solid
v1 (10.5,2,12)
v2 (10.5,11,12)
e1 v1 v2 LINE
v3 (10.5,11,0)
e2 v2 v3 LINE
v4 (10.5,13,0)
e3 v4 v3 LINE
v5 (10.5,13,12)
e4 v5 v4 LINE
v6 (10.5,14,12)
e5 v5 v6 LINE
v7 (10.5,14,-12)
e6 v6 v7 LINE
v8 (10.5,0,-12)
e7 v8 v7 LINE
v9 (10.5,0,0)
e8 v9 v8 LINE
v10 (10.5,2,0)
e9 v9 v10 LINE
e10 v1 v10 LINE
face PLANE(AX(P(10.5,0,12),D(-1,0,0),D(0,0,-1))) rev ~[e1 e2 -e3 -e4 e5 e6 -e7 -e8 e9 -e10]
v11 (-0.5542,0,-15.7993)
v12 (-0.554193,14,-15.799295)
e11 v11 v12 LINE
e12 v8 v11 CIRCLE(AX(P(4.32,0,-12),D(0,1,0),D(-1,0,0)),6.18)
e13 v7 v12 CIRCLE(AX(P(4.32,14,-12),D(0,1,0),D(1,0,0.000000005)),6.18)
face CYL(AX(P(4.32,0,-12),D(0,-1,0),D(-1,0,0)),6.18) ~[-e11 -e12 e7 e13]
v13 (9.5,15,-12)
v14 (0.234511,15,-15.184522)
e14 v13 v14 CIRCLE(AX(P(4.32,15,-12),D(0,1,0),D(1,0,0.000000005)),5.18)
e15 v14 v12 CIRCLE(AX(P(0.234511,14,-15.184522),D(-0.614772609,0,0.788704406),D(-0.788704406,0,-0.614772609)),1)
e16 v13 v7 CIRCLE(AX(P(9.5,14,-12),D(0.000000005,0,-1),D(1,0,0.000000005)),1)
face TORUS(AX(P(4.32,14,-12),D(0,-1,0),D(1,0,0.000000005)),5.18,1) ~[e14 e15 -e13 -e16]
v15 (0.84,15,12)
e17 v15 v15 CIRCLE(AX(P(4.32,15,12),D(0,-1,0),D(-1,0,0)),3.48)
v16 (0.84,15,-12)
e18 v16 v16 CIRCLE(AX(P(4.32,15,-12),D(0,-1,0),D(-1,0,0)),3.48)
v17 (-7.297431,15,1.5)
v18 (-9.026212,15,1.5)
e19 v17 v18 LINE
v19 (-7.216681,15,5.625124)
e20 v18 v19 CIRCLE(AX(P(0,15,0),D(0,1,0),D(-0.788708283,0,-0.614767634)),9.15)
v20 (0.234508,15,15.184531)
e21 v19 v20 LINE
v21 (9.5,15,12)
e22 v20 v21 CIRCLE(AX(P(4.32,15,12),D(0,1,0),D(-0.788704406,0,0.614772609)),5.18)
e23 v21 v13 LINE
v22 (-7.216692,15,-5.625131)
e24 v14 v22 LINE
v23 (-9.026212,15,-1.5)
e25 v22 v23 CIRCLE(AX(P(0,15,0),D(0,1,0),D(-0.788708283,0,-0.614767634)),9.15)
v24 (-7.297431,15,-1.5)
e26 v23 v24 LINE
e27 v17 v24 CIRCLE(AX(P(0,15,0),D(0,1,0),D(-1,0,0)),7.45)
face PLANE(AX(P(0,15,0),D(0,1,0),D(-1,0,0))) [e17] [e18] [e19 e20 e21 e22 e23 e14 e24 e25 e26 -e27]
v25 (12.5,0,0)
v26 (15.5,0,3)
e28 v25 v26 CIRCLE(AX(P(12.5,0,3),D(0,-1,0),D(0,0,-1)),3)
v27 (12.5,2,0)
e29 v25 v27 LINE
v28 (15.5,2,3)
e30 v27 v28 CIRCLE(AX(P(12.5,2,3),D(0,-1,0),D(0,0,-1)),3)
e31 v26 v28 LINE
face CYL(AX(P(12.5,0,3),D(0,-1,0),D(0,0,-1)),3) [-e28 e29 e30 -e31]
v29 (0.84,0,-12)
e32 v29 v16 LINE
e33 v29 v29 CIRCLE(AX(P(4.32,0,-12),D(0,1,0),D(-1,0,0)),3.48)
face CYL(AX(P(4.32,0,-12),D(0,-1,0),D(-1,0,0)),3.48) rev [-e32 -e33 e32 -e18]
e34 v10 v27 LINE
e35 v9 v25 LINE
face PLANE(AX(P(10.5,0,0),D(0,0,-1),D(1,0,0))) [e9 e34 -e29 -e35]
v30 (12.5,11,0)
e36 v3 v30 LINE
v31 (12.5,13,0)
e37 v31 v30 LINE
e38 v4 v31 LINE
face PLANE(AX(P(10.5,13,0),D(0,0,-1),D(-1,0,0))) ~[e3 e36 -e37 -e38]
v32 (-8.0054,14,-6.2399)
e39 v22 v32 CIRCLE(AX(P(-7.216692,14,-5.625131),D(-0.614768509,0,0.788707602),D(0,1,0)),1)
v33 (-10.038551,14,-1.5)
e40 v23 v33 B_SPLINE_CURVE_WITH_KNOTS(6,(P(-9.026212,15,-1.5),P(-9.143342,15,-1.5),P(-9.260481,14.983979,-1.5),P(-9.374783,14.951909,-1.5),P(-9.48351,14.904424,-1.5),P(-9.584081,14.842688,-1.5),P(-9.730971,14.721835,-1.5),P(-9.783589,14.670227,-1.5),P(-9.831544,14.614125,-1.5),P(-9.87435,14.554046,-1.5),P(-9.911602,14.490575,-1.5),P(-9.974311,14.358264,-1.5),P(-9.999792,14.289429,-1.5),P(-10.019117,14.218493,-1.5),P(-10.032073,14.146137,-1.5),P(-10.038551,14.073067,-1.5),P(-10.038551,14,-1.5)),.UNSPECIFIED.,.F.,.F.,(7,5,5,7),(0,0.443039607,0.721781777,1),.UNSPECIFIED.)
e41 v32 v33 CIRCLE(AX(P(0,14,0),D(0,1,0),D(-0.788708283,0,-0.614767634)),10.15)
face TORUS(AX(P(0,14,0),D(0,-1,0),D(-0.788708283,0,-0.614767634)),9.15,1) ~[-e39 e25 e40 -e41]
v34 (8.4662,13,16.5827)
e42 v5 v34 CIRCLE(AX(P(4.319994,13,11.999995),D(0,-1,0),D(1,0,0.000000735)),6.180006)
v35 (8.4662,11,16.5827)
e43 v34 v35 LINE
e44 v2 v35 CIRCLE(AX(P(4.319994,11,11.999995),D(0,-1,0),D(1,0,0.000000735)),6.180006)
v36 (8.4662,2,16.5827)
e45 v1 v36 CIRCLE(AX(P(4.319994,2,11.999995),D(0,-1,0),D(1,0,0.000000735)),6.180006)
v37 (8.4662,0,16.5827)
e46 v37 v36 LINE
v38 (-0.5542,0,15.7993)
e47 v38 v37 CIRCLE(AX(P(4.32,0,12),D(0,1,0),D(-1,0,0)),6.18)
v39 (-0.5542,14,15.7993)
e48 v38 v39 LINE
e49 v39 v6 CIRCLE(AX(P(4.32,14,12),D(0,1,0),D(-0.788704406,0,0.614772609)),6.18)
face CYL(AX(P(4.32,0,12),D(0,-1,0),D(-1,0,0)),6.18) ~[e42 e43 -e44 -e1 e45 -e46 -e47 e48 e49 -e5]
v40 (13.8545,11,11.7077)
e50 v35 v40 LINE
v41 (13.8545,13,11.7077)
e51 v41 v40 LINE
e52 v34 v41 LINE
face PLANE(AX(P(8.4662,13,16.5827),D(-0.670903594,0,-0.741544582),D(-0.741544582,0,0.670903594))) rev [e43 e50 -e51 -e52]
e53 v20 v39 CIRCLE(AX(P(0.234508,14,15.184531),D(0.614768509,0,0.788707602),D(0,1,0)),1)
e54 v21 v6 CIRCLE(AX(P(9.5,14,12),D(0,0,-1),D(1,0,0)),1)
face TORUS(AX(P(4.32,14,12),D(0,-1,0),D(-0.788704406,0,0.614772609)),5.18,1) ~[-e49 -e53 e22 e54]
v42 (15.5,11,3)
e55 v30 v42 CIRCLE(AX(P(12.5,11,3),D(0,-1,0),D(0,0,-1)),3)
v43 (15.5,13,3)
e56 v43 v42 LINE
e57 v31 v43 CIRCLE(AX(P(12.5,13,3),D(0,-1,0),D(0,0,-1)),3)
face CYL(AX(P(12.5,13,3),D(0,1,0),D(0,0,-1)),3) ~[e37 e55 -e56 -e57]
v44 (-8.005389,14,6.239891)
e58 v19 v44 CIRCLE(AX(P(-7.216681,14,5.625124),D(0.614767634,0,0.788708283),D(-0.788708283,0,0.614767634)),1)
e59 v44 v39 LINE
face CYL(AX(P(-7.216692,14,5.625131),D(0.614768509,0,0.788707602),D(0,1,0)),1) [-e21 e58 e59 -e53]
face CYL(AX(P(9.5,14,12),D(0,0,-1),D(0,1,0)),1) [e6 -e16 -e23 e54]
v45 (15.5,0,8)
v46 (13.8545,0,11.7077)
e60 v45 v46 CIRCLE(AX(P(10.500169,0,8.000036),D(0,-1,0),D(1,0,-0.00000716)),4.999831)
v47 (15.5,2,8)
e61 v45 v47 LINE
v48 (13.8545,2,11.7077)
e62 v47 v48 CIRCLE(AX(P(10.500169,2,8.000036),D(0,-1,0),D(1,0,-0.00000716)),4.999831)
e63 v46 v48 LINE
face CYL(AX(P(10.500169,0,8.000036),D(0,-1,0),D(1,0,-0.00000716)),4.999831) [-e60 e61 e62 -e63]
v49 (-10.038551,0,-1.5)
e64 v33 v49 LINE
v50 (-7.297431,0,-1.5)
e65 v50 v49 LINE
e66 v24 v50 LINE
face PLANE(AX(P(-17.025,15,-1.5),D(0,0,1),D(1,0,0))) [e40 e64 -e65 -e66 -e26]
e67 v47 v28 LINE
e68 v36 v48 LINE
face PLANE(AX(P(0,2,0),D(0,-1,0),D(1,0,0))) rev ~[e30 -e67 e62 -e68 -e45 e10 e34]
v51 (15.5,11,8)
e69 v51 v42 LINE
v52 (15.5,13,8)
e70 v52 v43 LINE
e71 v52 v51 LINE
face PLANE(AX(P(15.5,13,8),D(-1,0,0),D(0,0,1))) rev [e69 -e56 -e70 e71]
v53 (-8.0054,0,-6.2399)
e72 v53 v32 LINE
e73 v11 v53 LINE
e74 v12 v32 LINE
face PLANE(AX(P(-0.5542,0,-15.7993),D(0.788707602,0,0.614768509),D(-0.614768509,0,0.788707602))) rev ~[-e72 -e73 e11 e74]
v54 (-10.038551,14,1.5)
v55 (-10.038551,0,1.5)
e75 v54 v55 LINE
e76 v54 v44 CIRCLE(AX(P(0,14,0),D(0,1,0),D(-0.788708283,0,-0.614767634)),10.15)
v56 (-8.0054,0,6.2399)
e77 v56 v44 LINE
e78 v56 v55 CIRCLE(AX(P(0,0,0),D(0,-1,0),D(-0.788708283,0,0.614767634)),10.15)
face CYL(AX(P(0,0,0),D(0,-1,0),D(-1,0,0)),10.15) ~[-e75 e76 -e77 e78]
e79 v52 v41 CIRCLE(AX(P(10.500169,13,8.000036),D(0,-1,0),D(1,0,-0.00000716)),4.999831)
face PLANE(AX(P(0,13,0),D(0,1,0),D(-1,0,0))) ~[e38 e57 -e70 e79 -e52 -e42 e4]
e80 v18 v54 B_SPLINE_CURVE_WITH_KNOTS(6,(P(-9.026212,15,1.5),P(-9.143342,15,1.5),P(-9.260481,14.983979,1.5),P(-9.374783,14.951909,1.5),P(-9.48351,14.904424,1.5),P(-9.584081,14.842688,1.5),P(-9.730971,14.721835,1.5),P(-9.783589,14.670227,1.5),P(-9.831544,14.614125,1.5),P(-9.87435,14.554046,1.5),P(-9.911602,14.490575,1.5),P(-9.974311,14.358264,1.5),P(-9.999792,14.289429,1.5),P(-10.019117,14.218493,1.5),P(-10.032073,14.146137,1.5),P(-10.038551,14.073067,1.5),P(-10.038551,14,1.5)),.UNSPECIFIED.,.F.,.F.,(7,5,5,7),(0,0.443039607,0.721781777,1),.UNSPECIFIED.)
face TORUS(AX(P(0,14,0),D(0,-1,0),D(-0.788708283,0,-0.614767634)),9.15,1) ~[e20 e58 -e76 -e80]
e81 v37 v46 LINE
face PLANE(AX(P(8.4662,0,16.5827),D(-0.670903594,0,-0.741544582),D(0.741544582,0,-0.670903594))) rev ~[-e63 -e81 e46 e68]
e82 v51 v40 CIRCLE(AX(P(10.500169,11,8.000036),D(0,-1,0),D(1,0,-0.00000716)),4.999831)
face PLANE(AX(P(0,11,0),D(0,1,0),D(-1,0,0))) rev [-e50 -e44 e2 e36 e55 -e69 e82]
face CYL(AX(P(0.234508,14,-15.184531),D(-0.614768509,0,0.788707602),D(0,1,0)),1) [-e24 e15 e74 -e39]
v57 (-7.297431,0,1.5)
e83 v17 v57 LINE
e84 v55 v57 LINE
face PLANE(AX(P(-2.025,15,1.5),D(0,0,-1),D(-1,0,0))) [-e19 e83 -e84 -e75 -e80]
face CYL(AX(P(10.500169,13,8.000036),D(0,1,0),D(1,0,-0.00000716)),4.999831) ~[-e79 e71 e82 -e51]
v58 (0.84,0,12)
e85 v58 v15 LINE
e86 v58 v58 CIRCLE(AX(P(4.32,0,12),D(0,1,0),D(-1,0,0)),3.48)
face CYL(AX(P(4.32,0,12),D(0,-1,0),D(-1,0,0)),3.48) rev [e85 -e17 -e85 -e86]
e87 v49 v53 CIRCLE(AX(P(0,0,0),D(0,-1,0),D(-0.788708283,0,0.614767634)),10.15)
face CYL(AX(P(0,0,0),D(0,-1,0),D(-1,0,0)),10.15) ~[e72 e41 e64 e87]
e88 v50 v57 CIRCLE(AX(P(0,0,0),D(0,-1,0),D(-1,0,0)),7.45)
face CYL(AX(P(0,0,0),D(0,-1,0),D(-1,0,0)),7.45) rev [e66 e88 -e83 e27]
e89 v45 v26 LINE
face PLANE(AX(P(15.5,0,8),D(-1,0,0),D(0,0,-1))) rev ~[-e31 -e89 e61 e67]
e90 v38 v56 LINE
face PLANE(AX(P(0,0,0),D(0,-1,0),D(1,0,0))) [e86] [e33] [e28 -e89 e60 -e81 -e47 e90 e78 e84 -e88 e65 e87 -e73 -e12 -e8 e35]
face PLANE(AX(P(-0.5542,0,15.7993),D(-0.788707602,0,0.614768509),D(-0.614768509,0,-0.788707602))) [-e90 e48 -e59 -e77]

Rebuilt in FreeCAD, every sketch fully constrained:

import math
import FreeCAD as App
import Part
import Sketcher
from FreeCAD import Vector


def edges_at(feature, points):
    """Names of the edges that pass closest to the given points."""
    edges = feature.Shape.Edges
    near = lambda p: min(range(len(edges)), key=lambda i: edges[i].distToShape(Part.Vertex(*p))[0])
    return sorted({f"Edge{near(p) + 1}" for p in points})


def add_polygon(sketch, points):
    """Adds a closed chain of lines whose ends are joined by coincident constraints."""
    first, n = sketch.GeometryCount, len(points)
    for a, b in zip(points, points[1:] + points[:1]):
        sketch.addGeometry(Part.LineSegment(App.Vector(*a, 0), App.Vector(*b, 0)), False)
    for i in range(n):
        sketch.addConstraint(Sketcher.Constraint("Coincident", first + i, 2, first + (i + 1) % n, 1))

doc = App.newDocument("Part")
body = doc.addObject("PartDesign::Body", "Body")

sketch1 = body.newObject("Sketcher::SketchObject", "Sketch")
sketch1.AttachmentSupport = (doc.getObject("XZ_Plane"), [""])
sketch1.MapMode = "FlatFace"
sketch1.addGeometry([
    Part.LineSegment(Vector(-8, 6.2, 0), Vector(-0.6, 15.8, 0)),
    Part.ArcOfCircle(Part.Circle(Vector(4.3, 12, 0), Vector(0, 0, 1), 6.2), math.radians(0), math.radians(142)),
    Part.LineSegment(Vector(10.5, 12, 0), Vector(10.5, -12, 0)),
    Part.ArcOfCircle(Part.Circle(Vector(4.3, -12, 0), Vector(0, 0, 1), 6.2), math.radians(-142), math.radians(0)),
    Part.LineSegment(Vector(-0.6, -15.8, 0), Vector(-8, -6.2, 0)),
    Part.ArcOfCircle(Part.Circle(Vector(0, 0, 0), Vector(0, 0, 1), 10.2), math.radians(142), math.radians(218)),
    Part.Circle(Vector(0, 0, 0), Vector(0, 0, 1), 7.5),
    Part.Circle(Vector(4.3, 12, 0), Vector(0, 0, 1), 3.5),
    Part.Circle(Vector(4.3, -12, 0), Vector(0, 0, 1), 3.5),
], False)
sketch1.addConstraint([
    Sketcher.Constraint("Tangent", 0, 2, 1, 2),
    Sketcher.Constraint("Tangent", 1, 1, 2, 1),
    Sketcher.Constraint("Tangent", 2, 2, 3, 2),
    Sketcher.Constraint("Tangent", 3, 1, 4, 1),
    Sketcher.Constraint("Tangent", 4, 2, 5, 2),
    Sketcher.Constraint("Tangent", 5, 1, 0, 1),
    Sketcher.Constraint("Vertical", 2),
    Sketcher.Constraint("Coincident", 5, 3, -1, 1),
    Sketcher.Constraint("Coincident", 6, 3, -1, 1),
    Sketcher.Constraint("Coincident", 7, 3, 1, 3),
    Sketcher.Constraint("Coincident", 8, 3, 3, 3),
    Sketcher.Constraint("Equal", 1, 3),
    Sketcher.Constraint("Equal", 7, 8),
    Sketcher.Constraint("Vertical", 0, 2, 3, 1),
    Sketcher.Constraint("Diameter", 6, 14.9),
    Sketcher.Constraint("Diameter", 7, 6.96),
    Sketcher.Constraint("DistanceY", -1, 1, 1, 3, 12.0),
    Sketcher.Constraint("DistanceX", -1, 1, 1, 1, 10.5),
    Sketcher.Constraint("Radius", 1, 6.18),
    Sketcher.Constraint("Radius", 5, 10.15),
])
pad1 = body.newObject("PartDesign::Pad", "Pad")
pad1.Profile = sketch1
pad1.Length = 15
pad1.Reversed = True

sketch2 = body.newObject("Sketcher::SketchObject", "Sketch001")
sketch2.AttachmentSupport = (doc.getObject("XZ_Plane"), [""])
sketch2.MapMode = "FlatFace"
sketch2.addGeometry([
    Part.ArcOfCircle(Part.Circle(Vector(4.3, 12, 0), Vector(0, 0, 1), 6.2), math.radians(0), math.radians(48)),
    Part.LineSegment(Vector(10.5, 12, 0), Vector(10.5, 0, 0)),
    Part.LineSegment(Vector(10.5, 0, 0), Vector(12.5, 0, 0)),
    Part.ArcOfCircle(Part.Circle(Vector(12.5, 3, 0), Vector(0, 0, 1), 3), math.radians(-90), math.radians(0)),
    Part.LineSegment(Vector(15.5, 3, 0), Vector(15.5, 8, 0)),
    Part.ArcOfCircle(Part.Circle(Vector(10.5, 8, 0), Vector(0, 0, 1), 5), math.radians(0), math.radians(48)),
    Part.LineSegment(Vector(13.9, 11.7, 0), Vector(8.5, 16.6, 0)),
], False)
sketch2.addConstraint([
    Sketcher.Constraint("Tangent", 0, 1, 1, 1),
    Sketcher.Constraint("Coincident", 1, 2, 2, 1),
    Sketcher.Constraint("Tangent", 2, 2, 3, 1),
    Sketcher.Constraint("Tangent", 3, 2, 4, 1),
    Sketcher.Constraint("Tangent", 4, 2, 5, 1),
    Sketcher.Constraint("Tangent", 5, 2, 6, 1),
    Sketcher.Constraint("Tangent", 6, 2, 0, 2),
    Sketcher.Constraint("Vertical", 1),
    Sketcher.Constraint("Horizontal", 2),
    Sketcher.Constraint("Vertical", 4),
    Sketcher.Constraint("PointOnObject", 1, 2, -1),
    Sketcher.Constraint("Vertical", 5, 3, 0, 1),
    Sketcher.Constraint("Radius", 3, 3.0),
    Sketcher.Constraint("Radius", 5, 5.0),
    Sketcher.Constraint("DistanceY", 4, 1, 4, 2, 5.0),
    Sketcher.Constraint("DistanceY", 1, 2, 1, 1, 12.0),
    Sketcher.Constraint("Radius", 0, 6.18),
    Sketcher.Constraint("DistanceX", -1, 1, 3, 3, 12.5),
])
pad2 = body.newObject("PartDesign::Pad", "Pad001")
pad2.Profile = sketch2
pad2.Length = 2
pad2.Reversed = True
doc.recompute()

datumplane = body.newObject("PartDesign::Plane", "DatumPlane")
datumplane.AttachmentSupport = (doc.getObject("XZ_Plane"), [""])
datumplane.MapMode = "FlatFace"
datumplane.AttachmentOffset = App.Placement(Vector(0, 0, -6.5), App.Rotation())
mirrored = body.newObject("PartDesign::Mirrored", "Mirrored")
mirrored.Originals = [pad2]
mirrored.MirrorPlane = (datumplane, [""])
body.Tip = mirrored
doc.recompute()

fillet = body.newObject("PartDesign::Fillet", "Fillet")
fillet.Base = (mirrored, edges_at(mirrored, [
    (6.329, 15, -17.844),
    (-4.28, 15, -11.02),
    (-10.15, 15, 0),
    (-4.28, 15, 11.02),
    (6.329, 15, 17.844),
    (10.5, 15, 0),
]))
fillet.Radius = 1

sketch3 = body.newObject("Sketcher::SketchObject", "Sketch002")
sketch3.AttachmentSupport = (doc.getObject("XZ_Plane"), [""])
sketch3.MapMode = "FlatFace"
sketch3.AttachmentOffset = App.Placement(Vector(0, 0, -15), App.Rotation())
add_polygon(sketch3, [(-2, -1.5), (-17, -1.5), (-17, 1.5), (-2, 1.5)])
sketch3.addConstraint([
    Sketcher.Constraint("Horizontal", 0),
    Sketcher.Constraint("Vertical", 1),
    Sketcher.Constraint("Horizontal", 2),
    Sketcher.Constraint("Vertical", 3),
    Sketcher.Constraint("DistanceX", 0, 2, 0, 1, 15.0),
    Sketcher.Constraint("DistanceY", 1, 1, 1, 2, 3.0),
    Sketcher.Constraint("DistanceY", 0, 2, -1, 1, 1.5),
    Sketcher.Constraint("DistanceX", 0, 2, -1, 1, 17.025),
])
pocket1 = body.newObject("PartDesign::Pocket", "Pocket")
pocket1.Profile = sketch3
pocket1.Type = "ThroughAll"
pocket1.Reversed = True

doc.recompute()
